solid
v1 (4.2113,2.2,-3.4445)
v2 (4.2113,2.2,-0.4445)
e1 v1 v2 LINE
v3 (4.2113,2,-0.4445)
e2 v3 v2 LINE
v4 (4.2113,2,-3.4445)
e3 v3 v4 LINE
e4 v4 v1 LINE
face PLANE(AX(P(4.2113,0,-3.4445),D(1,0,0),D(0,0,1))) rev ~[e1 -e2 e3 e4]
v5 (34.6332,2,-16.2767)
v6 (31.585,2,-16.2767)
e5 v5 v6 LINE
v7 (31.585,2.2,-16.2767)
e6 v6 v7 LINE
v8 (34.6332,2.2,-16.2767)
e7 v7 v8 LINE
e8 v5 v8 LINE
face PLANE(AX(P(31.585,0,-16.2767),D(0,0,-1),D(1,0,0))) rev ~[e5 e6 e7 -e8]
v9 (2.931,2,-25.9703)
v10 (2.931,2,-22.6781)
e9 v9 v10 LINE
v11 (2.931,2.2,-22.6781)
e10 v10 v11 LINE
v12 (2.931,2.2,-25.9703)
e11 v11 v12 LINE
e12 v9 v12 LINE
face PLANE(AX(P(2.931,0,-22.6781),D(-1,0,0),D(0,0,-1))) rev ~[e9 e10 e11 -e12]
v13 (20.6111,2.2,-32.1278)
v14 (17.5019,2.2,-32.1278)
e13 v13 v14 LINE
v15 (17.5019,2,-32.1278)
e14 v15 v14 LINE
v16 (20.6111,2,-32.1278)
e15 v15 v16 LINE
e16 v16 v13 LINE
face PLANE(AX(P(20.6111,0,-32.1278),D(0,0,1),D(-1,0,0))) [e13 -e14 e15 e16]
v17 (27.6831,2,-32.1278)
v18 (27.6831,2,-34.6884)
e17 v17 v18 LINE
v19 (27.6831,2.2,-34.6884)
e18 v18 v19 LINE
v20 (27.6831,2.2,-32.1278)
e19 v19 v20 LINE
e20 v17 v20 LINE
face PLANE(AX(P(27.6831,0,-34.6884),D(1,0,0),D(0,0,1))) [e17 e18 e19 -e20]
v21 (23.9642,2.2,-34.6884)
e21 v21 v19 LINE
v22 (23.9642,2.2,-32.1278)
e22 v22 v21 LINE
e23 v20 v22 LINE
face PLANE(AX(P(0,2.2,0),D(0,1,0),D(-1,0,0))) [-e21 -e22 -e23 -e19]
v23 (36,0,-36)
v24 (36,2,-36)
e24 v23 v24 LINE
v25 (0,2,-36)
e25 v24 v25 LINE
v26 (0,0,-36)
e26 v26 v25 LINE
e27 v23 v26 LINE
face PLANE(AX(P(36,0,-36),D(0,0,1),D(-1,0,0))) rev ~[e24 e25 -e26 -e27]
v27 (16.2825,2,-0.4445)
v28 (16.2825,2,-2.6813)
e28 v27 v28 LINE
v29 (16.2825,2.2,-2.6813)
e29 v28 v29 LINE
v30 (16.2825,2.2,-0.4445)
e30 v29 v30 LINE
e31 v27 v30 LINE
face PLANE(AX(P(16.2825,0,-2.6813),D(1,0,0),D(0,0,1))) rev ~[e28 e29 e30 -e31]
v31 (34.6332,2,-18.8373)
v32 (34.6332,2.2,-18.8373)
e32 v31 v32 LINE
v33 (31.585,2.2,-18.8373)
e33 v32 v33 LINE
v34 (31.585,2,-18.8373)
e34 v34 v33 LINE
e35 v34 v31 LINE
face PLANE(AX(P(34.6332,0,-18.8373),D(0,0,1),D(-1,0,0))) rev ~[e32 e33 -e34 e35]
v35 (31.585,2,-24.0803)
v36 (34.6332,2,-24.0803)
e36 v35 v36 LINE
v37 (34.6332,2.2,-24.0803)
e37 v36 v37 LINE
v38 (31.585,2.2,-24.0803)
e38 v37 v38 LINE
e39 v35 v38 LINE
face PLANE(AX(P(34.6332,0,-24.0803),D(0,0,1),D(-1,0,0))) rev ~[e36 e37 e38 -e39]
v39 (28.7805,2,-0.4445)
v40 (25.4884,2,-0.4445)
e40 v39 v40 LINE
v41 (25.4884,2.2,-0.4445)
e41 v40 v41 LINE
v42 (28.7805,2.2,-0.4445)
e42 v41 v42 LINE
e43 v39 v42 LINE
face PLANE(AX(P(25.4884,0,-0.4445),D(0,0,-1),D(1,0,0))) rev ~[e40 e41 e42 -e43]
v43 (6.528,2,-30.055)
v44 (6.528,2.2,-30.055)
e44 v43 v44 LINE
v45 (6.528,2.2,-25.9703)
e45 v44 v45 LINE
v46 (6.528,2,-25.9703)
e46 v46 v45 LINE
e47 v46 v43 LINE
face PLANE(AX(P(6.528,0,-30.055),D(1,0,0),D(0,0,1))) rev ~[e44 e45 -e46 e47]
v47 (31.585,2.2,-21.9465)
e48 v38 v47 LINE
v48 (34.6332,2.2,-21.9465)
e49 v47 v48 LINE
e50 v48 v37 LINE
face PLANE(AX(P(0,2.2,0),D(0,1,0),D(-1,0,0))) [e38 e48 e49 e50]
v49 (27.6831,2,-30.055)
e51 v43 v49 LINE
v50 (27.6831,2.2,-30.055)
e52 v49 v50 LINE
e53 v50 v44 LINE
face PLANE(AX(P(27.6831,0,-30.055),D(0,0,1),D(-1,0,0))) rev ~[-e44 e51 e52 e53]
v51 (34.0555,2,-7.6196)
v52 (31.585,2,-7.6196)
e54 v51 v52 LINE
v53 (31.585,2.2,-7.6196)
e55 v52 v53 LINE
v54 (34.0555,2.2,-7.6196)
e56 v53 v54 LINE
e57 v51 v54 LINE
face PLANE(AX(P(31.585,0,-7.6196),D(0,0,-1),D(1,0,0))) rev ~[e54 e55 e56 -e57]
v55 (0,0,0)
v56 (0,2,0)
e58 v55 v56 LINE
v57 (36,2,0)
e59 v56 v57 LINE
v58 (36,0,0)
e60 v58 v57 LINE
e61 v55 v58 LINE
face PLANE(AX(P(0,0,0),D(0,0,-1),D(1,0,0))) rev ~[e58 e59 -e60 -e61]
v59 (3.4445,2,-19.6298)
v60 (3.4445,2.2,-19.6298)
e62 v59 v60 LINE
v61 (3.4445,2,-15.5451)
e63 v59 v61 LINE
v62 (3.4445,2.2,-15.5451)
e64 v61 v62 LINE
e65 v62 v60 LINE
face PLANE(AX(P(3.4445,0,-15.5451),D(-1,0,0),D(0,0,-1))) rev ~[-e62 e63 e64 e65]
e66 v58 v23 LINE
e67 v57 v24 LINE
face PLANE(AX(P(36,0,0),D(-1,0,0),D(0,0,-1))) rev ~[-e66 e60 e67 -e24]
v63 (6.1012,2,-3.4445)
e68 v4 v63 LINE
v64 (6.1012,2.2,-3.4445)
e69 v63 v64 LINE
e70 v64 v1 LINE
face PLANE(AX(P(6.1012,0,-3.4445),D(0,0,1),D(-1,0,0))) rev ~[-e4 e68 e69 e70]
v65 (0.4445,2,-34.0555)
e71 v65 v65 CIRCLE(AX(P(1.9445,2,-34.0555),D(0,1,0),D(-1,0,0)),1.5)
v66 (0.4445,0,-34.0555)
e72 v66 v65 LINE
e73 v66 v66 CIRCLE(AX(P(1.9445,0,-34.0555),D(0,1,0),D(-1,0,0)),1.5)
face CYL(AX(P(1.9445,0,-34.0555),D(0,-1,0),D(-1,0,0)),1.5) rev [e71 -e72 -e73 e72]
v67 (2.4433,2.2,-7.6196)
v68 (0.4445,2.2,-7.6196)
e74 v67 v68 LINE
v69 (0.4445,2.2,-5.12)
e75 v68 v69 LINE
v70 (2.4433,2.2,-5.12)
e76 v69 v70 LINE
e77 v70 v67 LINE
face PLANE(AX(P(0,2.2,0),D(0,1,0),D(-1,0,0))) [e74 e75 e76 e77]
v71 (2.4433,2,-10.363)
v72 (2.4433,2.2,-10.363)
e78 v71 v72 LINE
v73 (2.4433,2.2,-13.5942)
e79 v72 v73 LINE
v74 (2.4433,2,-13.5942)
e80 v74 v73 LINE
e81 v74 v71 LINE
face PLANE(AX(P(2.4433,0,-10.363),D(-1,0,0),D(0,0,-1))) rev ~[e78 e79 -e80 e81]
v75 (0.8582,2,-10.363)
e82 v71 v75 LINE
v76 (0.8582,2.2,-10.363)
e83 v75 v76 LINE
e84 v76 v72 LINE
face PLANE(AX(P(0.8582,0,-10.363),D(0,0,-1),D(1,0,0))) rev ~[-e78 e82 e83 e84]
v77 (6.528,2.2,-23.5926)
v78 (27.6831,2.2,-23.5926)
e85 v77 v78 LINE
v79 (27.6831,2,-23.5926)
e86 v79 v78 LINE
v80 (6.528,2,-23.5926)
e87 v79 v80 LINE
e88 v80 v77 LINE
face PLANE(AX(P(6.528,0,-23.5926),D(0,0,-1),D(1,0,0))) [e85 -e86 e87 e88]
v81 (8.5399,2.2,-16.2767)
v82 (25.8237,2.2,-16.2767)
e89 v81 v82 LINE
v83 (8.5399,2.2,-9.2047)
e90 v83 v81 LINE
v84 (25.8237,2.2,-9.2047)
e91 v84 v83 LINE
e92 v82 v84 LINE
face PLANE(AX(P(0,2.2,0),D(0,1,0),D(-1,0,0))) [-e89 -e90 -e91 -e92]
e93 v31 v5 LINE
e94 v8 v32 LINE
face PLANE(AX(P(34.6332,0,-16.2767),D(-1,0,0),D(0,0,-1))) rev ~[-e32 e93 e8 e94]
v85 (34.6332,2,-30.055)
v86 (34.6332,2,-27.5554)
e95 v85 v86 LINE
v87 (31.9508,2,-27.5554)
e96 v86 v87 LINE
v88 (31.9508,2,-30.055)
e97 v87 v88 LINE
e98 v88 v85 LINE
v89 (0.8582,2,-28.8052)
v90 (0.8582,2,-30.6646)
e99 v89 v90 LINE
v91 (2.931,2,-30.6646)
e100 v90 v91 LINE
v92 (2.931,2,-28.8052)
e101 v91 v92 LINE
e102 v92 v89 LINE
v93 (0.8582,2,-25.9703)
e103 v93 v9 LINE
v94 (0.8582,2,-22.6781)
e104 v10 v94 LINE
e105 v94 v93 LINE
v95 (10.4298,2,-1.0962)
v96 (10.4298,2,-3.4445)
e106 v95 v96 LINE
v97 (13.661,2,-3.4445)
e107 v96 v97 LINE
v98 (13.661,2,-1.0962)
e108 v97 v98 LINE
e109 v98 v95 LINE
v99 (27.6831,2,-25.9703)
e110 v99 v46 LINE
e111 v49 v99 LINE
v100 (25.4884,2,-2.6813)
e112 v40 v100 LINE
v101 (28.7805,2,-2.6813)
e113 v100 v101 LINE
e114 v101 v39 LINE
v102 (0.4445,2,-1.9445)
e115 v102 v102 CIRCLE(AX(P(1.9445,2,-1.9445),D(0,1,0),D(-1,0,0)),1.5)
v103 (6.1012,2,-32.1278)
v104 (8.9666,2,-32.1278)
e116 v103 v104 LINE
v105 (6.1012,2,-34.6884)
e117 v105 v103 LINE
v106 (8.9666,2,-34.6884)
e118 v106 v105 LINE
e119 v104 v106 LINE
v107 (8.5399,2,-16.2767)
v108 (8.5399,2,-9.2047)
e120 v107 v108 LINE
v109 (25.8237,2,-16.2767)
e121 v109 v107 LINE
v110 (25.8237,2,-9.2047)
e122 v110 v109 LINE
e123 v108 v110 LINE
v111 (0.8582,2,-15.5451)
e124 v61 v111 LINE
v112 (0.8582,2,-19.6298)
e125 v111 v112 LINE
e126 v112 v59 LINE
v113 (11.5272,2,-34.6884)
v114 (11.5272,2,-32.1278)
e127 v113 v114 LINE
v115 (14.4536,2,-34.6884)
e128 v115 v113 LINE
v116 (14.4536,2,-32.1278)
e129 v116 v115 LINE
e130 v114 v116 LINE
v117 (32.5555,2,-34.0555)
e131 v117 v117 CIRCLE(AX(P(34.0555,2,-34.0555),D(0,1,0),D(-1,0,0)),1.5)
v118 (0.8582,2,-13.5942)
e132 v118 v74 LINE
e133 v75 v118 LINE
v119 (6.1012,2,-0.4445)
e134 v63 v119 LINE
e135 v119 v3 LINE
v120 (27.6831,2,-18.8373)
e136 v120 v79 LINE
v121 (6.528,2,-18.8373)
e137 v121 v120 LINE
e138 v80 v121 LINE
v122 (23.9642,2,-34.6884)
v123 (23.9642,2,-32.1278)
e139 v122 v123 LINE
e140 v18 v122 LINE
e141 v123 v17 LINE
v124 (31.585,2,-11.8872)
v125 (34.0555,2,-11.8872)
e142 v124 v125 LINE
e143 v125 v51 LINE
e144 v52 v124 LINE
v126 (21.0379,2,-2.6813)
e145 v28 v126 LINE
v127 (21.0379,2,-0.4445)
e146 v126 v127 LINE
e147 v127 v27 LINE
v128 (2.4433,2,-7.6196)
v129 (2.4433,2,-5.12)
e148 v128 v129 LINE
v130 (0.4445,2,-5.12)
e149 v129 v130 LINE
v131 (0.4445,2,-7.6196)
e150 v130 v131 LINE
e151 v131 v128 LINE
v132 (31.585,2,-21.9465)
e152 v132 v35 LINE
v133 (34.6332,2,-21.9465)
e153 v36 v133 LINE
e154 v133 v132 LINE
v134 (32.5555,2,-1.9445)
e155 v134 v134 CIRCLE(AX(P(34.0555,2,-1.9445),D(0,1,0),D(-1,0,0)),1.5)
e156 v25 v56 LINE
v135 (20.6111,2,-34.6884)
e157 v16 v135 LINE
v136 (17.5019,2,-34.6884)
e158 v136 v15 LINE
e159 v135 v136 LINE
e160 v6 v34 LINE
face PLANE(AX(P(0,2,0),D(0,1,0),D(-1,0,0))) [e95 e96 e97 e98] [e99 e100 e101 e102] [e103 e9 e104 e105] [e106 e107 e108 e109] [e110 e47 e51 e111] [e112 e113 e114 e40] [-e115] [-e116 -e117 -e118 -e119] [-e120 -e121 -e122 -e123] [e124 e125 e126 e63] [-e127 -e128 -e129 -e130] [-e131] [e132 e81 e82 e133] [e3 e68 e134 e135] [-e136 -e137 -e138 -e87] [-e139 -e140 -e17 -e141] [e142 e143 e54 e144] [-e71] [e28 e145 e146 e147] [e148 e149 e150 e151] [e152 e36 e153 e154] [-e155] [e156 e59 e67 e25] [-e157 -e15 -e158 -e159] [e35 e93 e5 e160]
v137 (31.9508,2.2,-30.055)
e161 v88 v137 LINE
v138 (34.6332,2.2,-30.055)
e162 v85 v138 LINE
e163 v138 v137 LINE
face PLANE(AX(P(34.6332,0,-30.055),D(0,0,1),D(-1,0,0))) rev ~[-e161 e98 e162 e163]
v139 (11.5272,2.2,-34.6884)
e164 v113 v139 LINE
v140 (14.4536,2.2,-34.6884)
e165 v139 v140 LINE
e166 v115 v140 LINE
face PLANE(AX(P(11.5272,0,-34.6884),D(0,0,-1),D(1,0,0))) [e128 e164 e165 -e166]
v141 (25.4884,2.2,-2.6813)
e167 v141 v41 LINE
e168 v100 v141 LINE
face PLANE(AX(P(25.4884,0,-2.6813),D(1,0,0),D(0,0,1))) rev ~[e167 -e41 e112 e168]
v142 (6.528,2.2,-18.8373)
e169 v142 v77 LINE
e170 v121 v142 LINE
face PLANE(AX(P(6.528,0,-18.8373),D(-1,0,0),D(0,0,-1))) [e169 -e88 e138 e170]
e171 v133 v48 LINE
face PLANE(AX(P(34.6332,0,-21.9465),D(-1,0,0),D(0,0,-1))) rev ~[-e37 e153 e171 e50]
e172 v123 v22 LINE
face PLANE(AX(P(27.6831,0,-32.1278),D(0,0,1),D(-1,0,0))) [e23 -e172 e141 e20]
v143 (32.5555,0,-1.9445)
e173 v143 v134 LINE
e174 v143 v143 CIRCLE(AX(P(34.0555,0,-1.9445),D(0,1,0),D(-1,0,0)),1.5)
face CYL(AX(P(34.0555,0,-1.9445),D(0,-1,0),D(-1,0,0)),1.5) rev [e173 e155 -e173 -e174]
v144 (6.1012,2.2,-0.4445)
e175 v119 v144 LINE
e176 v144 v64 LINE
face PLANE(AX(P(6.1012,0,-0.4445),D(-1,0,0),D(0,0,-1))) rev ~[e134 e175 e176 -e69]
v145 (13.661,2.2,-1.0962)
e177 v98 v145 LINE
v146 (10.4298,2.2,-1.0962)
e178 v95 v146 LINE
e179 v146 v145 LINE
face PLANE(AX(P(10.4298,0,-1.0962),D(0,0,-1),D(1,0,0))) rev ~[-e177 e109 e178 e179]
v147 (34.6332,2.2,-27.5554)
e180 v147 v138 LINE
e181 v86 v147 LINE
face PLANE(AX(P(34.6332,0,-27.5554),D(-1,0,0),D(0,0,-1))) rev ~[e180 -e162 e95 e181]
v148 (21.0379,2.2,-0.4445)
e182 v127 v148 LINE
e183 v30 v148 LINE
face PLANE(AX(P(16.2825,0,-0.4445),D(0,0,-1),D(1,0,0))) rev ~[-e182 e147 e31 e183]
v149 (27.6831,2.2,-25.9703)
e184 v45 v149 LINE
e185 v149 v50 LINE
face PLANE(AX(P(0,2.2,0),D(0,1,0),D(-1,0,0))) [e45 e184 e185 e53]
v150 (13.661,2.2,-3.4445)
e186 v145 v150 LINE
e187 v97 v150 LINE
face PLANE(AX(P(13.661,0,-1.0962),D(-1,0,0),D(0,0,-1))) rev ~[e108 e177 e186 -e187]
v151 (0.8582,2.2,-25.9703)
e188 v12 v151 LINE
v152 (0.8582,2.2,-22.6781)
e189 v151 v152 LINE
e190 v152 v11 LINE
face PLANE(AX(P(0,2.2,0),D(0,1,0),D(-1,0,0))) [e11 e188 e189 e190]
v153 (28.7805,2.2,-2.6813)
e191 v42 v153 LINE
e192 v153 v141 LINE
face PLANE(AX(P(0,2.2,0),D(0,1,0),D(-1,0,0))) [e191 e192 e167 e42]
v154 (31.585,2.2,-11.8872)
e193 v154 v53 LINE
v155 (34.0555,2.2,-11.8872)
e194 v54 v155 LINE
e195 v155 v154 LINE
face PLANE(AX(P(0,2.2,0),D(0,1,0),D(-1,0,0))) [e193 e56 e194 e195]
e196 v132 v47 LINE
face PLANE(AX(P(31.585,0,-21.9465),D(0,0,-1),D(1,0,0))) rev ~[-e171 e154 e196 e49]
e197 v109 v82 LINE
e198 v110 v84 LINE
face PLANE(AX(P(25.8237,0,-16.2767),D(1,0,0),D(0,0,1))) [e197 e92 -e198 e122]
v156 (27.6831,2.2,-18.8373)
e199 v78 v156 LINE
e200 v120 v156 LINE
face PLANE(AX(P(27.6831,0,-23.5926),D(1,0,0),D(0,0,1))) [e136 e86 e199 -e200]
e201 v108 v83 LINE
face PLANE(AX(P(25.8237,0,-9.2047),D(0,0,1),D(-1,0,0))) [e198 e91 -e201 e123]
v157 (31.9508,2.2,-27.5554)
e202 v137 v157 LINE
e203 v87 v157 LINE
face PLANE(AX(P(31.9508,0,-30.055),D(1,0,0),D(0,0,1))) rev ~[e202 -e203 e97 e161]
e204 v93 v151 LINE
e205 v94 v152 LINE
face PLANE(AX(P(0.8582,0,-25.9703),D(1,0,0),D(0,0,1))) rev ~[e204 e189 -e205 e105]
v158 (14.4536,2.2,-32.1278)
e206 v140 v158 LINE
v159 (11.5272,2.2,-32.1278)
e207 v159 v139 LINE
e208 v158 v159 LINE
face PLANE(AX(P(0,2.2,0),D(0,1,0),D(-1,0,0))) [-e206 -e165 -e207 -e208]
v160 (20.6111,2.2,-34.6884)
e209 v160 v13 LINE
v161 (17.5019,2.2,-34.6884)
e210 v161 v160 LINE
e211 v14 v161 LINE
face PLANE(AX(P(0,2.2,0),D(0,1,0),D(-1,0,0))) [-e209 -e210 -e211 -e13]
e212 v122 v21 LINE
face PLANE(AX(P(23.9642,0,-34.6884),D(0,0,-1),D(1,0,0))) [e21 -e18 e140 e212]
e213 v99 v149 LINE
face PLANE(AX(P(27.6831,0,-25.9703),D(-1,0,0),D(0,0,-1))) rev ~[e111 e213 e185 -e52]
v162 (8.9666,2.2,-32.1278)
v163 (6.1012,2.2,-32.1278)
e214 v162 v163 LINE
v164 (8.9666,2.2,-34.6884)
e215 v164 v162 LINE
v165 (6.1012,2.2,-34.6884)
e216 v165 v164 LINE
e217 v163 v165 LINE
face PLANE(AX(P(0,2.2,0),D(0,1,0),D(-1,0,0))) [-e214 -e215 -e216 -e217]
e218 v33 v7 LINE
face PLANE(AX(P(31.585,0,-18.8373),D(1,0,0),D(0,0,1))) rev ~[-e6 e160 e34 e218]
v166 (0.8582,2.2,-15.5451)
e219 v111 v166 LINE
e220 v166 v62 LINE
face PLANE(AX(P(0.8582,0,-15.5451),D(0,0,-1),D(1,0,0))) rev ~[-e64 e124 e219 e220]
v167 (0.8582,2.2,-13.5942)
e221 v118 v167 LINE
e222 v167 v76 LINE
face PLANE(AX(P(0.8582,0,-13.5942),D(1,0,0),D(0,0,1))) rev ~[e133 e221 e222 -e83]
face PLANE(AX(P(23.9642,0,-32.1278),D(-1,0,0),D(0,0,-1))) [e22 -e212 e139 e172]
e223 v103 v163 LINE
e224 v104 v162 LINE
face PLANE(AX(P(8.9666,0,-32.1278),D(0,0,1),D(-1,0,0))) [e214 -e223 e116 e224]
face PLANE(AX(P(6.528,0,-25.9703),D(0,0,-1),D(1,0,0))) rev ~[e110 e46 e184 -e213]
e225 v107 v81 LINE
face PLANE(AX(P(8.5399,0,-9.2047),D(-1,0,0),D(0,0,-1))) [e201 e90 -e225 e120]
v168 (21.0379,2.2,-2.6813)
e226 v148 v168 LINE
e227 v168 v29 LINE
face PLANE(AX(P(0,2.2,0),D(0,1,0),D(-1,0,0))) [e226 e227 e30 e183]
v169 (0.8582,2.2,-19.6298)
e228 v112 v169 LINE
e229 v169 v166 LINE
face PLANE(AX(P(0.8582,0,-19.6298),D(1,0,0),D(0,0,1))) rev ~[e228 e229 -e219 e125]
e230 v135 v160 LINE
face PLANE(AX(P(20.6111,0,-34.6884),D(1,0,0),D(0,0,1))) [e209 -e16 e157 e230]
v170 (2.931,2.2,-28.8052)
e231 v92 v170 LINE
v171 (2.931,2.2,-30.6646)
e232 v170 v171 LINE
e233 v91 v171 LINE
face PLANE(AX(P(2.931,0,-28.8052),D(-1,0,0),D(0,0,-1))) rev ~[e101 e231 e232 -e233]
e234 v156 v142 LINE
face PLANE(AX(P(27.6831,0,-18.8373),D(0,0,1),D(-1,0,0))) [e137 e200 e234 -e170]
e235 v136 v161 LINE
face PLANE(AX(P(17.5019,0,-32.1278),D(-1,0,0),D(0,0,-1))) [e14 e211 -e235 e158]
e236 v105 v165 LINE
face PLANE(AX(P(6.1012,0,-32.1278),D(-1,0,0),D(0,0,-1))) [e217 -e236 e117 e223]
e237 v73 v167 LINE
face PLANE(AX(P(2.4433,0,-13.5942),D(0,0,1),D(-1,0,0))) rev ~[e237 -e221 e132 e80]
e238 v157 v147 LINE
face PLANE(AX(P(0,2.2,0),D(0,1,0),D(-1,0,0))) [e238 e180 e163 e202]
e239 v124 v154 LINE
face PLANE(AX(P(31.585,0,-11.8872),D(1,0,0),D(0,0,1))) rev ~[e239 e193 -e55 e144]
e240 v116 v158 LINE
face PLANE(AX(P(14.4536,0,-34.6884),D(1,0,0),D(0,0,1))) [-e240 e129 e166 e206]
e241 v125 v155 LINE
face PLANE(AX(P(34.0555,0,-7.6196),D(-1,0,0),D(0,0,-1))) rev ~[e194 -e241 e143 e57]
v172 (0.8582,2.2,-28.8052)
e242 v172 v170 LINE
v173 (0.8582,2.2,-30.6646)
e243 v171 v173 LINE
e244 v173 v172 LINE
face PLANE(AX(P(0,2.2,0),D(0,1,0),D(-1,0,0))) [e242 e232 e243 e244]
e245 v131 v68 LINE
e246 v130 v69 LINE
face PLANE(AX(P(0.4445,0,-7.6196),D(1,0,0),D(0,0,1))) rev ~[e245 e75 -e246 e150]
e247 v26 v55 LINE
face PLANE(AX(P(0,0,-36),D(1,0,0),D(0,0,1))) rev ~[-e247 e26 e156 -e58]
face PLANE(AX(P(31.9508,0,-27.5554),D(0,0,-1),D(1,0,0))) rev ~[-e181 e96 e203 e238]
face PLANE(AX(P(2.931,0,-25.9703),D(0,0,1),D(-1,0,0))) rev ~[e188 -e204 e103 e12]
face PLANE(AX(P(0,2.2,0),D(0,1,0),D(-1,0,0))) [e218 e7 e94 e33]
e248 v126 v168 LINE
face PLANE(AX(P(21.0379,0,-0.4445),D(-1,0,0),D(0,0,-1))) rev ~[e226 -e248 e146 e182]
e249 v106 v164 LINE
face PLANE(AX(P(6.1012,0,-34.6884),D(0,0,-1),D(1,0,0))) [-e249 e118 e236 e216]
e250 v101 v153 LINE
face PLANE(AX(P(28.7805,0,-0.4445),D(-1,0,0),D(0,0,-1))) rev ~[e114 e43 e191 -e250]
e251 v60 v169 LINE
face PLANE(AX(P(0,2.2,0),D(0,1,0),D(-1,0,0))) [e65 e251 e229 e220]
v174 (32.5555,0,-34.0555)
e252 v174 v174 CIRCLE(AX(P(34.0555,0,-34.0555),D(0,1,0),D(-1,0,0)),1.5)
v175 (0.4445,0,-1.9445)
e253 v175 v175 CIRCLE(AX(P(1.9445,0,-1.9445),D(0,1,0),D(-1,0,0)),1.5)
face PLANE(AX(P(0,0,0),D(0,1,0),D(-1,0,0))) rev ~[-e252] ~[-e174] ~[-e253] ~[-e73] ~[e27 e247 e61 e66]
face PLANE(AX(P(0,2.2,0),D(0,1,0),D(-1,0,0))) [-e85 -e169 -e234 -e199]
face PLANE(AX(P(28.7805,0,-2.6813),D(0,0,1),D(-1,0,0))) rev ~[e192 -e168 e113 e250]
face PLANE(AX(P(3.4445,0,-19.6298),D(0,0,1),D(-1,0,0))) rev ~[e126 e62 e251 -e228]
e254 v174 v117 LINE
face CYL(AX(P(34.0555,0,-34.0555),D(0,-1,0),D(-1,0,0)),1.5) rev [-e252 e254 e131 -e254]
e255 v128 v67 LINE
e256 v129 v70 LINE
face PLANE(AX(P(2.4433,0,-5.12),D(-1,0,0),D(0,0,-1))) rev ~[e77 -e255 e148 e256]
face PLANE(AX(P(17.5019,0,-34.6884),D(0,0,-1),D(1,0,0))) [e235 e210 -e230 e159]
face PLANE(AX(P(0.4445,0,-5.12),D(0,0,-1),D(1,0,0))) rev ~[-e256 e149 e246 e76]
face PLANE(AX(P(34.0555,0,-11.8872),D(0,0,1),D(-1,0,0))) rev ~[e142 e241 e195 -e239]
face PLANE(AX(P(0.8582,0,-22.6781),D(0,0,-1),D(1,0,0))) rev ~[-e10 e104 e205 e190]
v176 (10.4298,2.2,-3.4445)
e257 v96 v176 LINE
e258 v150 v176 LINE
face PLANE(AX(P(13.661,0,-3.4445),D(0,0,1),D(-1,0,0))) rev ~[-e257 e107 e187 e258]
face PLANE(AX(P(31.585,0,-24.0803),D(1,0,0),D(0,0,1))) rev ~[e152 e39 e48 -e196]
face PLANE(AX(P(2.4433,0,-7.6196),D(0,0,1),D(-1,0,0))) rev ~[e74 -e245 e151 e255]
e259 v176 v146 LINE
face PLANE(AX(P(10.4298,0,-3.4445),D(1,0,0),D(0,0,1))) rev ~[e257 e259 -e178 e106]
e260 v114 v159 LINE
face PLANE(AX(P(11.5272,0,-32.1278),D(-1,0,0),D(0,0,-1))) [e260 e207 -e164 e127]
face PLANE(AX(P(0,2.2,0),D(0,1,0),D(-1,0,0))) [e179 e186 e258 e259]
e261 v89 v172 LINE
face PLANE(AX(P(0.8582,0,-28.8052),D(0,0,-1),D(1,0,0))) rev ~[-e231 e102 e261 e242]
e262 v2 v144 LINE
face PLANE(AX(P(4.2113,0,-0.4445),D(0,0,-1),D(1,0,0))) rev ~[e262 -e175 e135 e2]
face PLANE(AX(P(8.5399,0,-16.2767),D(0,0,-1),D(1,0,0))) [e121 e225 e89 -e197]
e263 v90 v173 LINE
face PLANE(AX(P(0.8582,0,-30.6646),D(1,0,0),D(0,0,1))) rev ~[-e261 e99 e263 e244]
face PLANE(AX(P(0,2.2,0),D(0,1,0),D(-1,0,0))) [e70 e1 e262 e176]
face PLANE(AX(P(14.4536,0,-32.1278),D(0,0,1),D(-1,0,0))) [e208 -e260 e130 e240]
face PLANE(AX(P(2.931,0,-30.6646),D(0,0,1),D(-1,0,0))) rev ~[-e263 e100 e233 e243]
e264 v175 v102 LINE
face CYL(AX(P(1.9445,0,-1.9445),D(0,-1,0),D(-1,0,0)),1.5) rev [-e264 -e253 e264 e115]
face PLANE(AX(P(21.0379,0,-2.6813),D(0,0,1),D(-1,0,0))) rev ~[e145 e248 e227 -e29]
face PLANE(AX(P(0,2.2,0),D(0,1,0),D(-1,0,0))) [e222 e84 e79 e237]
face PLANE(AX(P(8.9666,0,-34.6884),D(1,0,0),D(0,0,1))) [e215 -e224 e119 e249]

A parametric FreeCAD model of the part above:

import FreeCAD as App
import Part
import Sketcher
from FreeCAD import Vector

doc = App.newDocument("Part")
body = doc.addObject("PartDesign::Body", "Body")

# Sketch on XZ plane
sketch1 = body.newObject("Sketcher::SketchObject", "Sketch")
sketch1.AttachmentSupport = (doc.getObject("XZ_Plane"), [""])
sketch1.MapMode = "FlatFace"
sketch1.addGeometry([
    Part.LineSegment(Vector(0, -36, 0), Vector(0, 0, 0)),  # 0
    Part.LineSegment(Vector(0, 0, 0), Vector(36, 0, 0)),  # 1
    Part.LineSegment(Vector(36, 0, 0), Vector(36, -36, 0)),  # 2
    Part.LineSegment(Vector(36, -36, 0), Vector(0, -36, 0)),  # 3
    Part.Circle(Vector(34.0555, -34.0555, 0), Vector(0, 0, 1), 1.5),  # 4
    Part.Circle(Vector(1.9445, -34.0555, 0), Vector(0, 0, 1), 1.5),  # 5
    Part.Circle(Vector(34.0555, -1.9445, 0), Vector(0, 0, 1), 1.5),  # 6
    Part.Circle(Vector(1.9445, -1.9445, 0), Vector(0, 0, 1), 1.5),  # 7
], False)
sketch1.addConstraint([
    Sketcher.Constraint("Coincident", 0, 2, 1, 1),
    Sketcher.Constraint("Coincident", 1, 2, 2, 1),
    Sketcher.Constraint("Coincident", 2, 2, 3, 1),
    Sketcher.Constraint("Coincident", 3, 2, 0, 1),
    Sketcher.Constraint("Vertical", 0),
    Sketcher.Constraint("Horizontal", 1),
    Sketcher.Constraint("Vertical", 2),
    Sketcher.Constraint("Horizontal", 3),
    Sketcher.Constraint("Coincident", 0, 2, -1, 1),
    Sketcher.Constraint("Equal", 4, 5),
    Sketcher.Constraint("Equal", 5, 6),
    Sketcher.Constraint("Equal", 6, 7),
    Sketcher.Constraint("Horizontal", 4, 3, 5, 3),
    Sketcher.Constraint("Horizontal", 6, 3, 7, 3),
    Sketcher.Constraint("Vertical", 4, 3, 6, 3),
    Sketcher.Constraint("Vertical", 5, 3, 7, 3),
    Sketcher.Constraint("Equal", 3, 0),
    Sketcher.Constraint("Diameter", 4, 3.0),
    Sketcher.Constraint("DistanceX", 1, 1, 1, 2, 36.0),
    Sketcher.Constraint("DistanceX", 5, 3, 4, 3, 32.111),
    Sketcher.Constraint("DistanceY", 4, 3, 6, 3, 32.111),
    Sketcher.Constraint("DistanceX", -1, 1, 4, 3, 34.0555),
    Sketcher.Constraint("DistanceY", 4, 3, -1, 1, 34.0555),
])
pad1 = body.newObject("PartDesign::Pad", "Pad")
pad1.Profile = sketch1
pad1.Length = 2
pad1.Reversed = True

# Sketch on XZ plane
sketch2 = body.newObject("Sketcher::SketchObject", "Sketch001")
sketch2.AttachmentSupport = (doc.getObject("XZ_Plane"), [""])
sketch2.MapMode = "FlatFace"
sketch2.addGeometry([
    Part.LineSegment(Vector(8.9666, -34.6884, 0), Vector(6.1012, -34.6884, 0)),  # 0
    Part.LineSegment(Vector(6.1012, -34.6884, 0), Vector(6.1012, -32.1278, 0)),  # 1
    Part.LineSegment(Vector(6.1012, -32.1278, 0), Vector(8.9666, -32.1278, 0)),  # 2
    Part.LineSegment(Vector(8.9666, -32.1278, 0), Vector(8.9666, -34.6884, 0)),  # 3
    Part.LineSegment(Vector(14.4536, -34.6884, 0), Vector(11.5272, -34.6884, 0)),  # 4
    Part.LineSegment(Vector(11.5272, -34.6884, 0), Vector(11.5272, -32.1278, 0)),  # 5
    Part.LineSegment(Vector(11.5272, -32.1278, 0), Vector(14.4536, -32.1278, 0)),  # 6
    Part.LineSegment(Vector(14.4536, -32.1278, 0), Vector(14.4536, -34.6884, 0)),  # 7
    Part.LineSegment(Vector(20.6111, -34.6884, 0), Vector(17.5019, -34.6884, 0)),  # 8
    Part.LineSegment(Vector(17.5019, -34.6884, 0), Vector(17.5019, -32.1278, 0)),  # 9
    Part.LineSegment(Vector(17.5019, -32.1278, 0), Vector(20.6111, -32.1278, 0)),  # 10
    Part.LineSegment(Vector(20.6111, -32.1278, 0), Vector(20.6111, -34.6884, 0)),  # 11
    Part.LineSegment(Vector(27.6831, -34.6884, 0), Vector(23.9642, -34.6884, 0)),  # 12
    Part.LineSegment(Vector(23.9642, -34.6884, 0), Vector(23.9642, -32.1278, 0)),  # 13
    Part.LineSegment(Vector(23.9642, -32.1278, 0), Vector(27.6831, -32.1278, 0)),  # 14
    Part.LineSegment(Vector(27.6831, -32.1278, 0), Vector(27.6831, -34.6884, 0)),  # 15
    Part.LineSegment(Vector(34.6332, -27.5554, 0), Vector(34.6332, -30.055, 0)),  # 16
    Part.LineSegment(Vector(34.6332, -30.055, 0), Vector(31.9508, -30.055, 0)),  # 17
    Part.LineSegment(Vector(31.9508, -30.055, 0), Vector(31.9508, -27.5554, 0)),  # 18
    Part.LineSegment(Vector(31.9508, -27.5554, 0), Vector(34.6332, -27.5554, 0)),  # 19
    Part.LineSegment(Vector(34.6332, -21.9465, 0), Vector(34.6332, -24.0803, 0)),  # 20
    Part.LineSegment(Vector(34.6332, -24.0803, 0), Vector(31.585, -24.0803, 0)),  # 21
    Part.LineSegment(Vector(31.585, -24.0803, 0), Vector(31.585, -21.9465, 0)),  # 22
    Part.LineSegment(Vector(31.585, -21.9465, 0), Vector(34.6332, -21.9465, 0)),  # 23
    Part.LineSegment(Vector(34.6332, -16.2767, 0), Vector(34.6332, -18.8373, 0)),  # 24
    Part.LineSegment(Vector(34.6332, -18.8373, 0), Vector(31.585, -18.8373, 0)),  # 25
    Part.LineSegment(Vector(31.585, -18.8373, 0), Vector(31.585, -16.2767, 0)),  # 26
    Part.LineSegment(Vector(31.585, -16.2767, 0), Vector(34.6332, -16.2767, 0)),  # 27
    Part.LineSegment(Vector(34.0555, -7.6196, 0), Vector(34.0555, -11.8872, 0)),  # 28
    Part.LineSegment(Vector(34.0555, -11.8872, 0), Vector(31.585, -11.8872, 0)),  # 29
    Part.LineSegment(Vector(31.585, -11.8872, 0), Vector(31.585, -7.6196, 0)),  # 30
    Part.LineSegment(Vector(31.585, -7.6196, 0), Vector(34.0555, -7.6196, 0)),  # 31
    Part.LineSegment(Vector(28.7805, -0.4445, 0), Vector(28.7805, -2.6813, 0)),  # 32
    Part.LineSegment(Vector(28.7805, -2.6813, 0), Vector(25.4884, -2.6813, 0)),  # 33
    Part.LineSegment(Vector(25.4884, -2.6813, 0), Vector(25.4884, -0.4445, 0)),  # 34
    Part.LineSegment(Vector(25.4884, -0.4445, 0), Vector(28.7805, -0.4445, 0)),  # 35
    Part.LineSegment(Vector(21.0379, -0.4445, 0), Vector(21.0379, -2.6813, 0)),  # 36
    Part.LineSegment(Vector(21.0379, -2.6813, 0), Vector(16.2825, -2.6813, 0)),  # 37
    Part.LineSegment(Vector(16.2825, -2.6813, 0), Vector(16.2825, -0.4445, 0)),  # 38
    Part.LineSegment(Vector(16.2825, -0.4445, 0), Vector(21.0379, -0.4445, 0)),  # 39
    Part.LineSegment(Vector(13.661, -1.0962, 0), Vector(13.661, -3.4445, 0)),  # 40
    Part.LineSegment(Vector(13.661, -3.4445, 0), Vector(10.4298, -3.4445, 0)),  # 41
    Part.LineSegment(Vector(10.4298, -3.4445, 0), Vector(10.4298, -1.0962, 0)),  # 42
    Part.LineSegment(Vector(10.4298, -1.0962, 0), Vector(13.661, -1.0962, 0)),  # 43
    Part.LineSegment(Vector(6.1012, -0.4445, 0), Vector(6.1012, -3.4445, 0)),  # 44
    Part.LineSegment(Vector(6.1012, -3.4445, 0), Vector(4.2113, -3.4445, 0)),  # 45
    Part.LineSegment(Vector(4.2113, -3.4445, 0), Vector(4.2113, -0.4445, 0)),  # 46
    Part.LineSegment(Vector(4.2113, -0.4445, 0), Vector(6.1012, -0.4445, 0)),  # 47
    Part.LineSegment(Vector(2.4433, -5.12, 0), Vector(2.4433, -7.6196, 0)),  # 48
    Part.LineSegment(Vector(2.4433, -7.6196, 0), Vector(0.4445, -7.6196, 0)),  # 49
    Part.LineSegment(Vector(0.4445, -7.6196, 0), Vector(0.4445, -5.12, 0)),  # 50
    Part.LineSegment(Vector(0.4445, -5.12, 0), Vector(2.4433, -5.12, 0)),  # 51
    Part.LineSegment(Vector(2.4433, -10.363, 0), Vector(2.4433, -13.5942, 0)),  # 52
    Part.LineSegment(Vector(2.4433, -13.5942, 0), Vector(0.8582, -13.5942, 0)),  # 53
    Part.LineSegment(Vector(0.8582, -13.5942, 0), Vector(0.8582, -10.363, 0)),  # 54
    Part.LineSegment(Vector(0.8582, -10.363, 0), Vector(2.4433, -10.363, 0)),  # 55
    Part.LineSegment(Vector(3.4445, -15.5451, 0), Vector(3.4445, -19.6298, 0)),  # 56
    Part.LineSegment(Vector(3.4445, -19.6298, 0), Vector(0.8582, -19.6298, 0)),  # 57
    Part.LineSegment(Vector(0.8582, -19.6298, 0), Vector(0.8582, -15.5451, 0)),  # 58
    Part.LineSegment(Vector(0.8582, -15.5451, 0), Vector(3.4445, -15.5451, 0)),  # 59
    Part.LineSegment(Vector(2.931, -22.6781, 0), Vector(2.931, -25.9703, 0)),  # 60
    Part.LineSegment(Vector(2.931, -25.9703, 0), Vector(0.8582, -25.9703, 0)),  # 61
    Part.LineSegment(Vector(0.8582, -25.9703, 0), Vector(0.8582, -22.6781, 0)),  # 62
    Part.LineSegment(Vector(0.8582, -22.6781, 0), Vector(2.931, -22.6781, 0)),  # 63
    Part.LineSegment(Vector(2.931, -28.8052, 0), Vector(2.931, -30.6646, 0)),  # 64
    Part.LineSegment(Vector(2.931, -30.6646, 0), Vector(0.8582, -30.6646, 0)),  # 65
    Part.LineSegment(Vector(0.8582, -30.6646, 0), Vector(0.8582, -28.8052, 0)),  # 66
    Part.LineSegment(Vector(0.8582, -28.8052, 0), Vector(2.931, -28.8052, 0)),  # 67
    Part.LineSegment(Vector(27.6831, -25.9703, 0), Vector(27.6831, -30.055, 0)),  # 68
    Part.LineSegment(Vector(27.6831, -30.055, 0), Vector(6.528, -30.055, 0)),  # 69
    Part.LineSegment(Vector(6.528, -30.055, 0), Vector(6.528, -25.9703, 0)),  # 70
    Part.LineSegment(Vector(6.528, -25.9703, 0), Vector(27.6831, -25.9703, 0)),  # 71
    Part.LineSegment(Vector(27.6831, -23.5926, 0), Vector(6.528, -23.5926, 0)),  # 72
    Part.LineSegment(Vector(6.528, -23.5926, 0), Vector(6.528, -18.8373, 0)),  # 73
    Part.LineSegment(Vector(6.528, -18.8373, 0), Vector(27.6831, -18.8373, 0)),  # 74
    Part.LineSegment(Vector(27.6831, -18.8373, 0), Vector(27.6831, -23.5926, 0)),  # 75
    Part.LineSegment(Vector(8.5399, -9.2047, 0), Vector(25.8237, -9.2047, 0)),  # 76
    Part.LineSegment(Vector(25.8237, -9.2047, 0), Vector(25.8237, -16.2767, 0)),  # 77
    Part.LineSegment(Vector(25.8237, -16.2767, 0), Vector(8.5399, -16.2767, 0)),  # 78
    Part.LineSegment(Vector(8.5399, -16.2767, 0), Vector(8.5399, -9.2047, 0)),  # 79
], False)
sketch2.addConstraint([
    Sketcher.Constraint("Coincident", 0, 2, 1, 1),
    Sketcher.Constraint("Coincident", 1, 2, 2, 1),
    Sketcher.Constraint("Coincident", 2, 2, 3, 1),
    Sketcher.Constraint("Coincident", 3, 2, 0, 1),
    Sketcher.Constraint("Coincident", 4, 2, 5, 1),
    Sketcher.Constraint("Coincident", 5, 2, 6, 1),
    Sketcher.Constraint("Coincident", 6, 2, 7, 1),
    Sketcher.Constraint("Coincident", 7, 2, 4, 1),
    Sketcher.Constraint("Coincident", 8, 2, 9, 1),
    Sketcher.Constraint("Coincident", 9, 2, 10, 1),
    Sketcher.Constraint("Coincident", 10, 2, 11, 1),
    Sketcher.Constraint("Coincident", 11, 2, 8, 1),
    Sketcher.Constraint("Coincident", 12, 2, 13, 1),
    Sketcher.Constraint("Coincident", 13, 2, 14, 1),
    Sketcher.Constraint("Coincident", 14, 2, 15, 1),
    Sketcher.Constraint("Coincident", 15, 2, 12, 1),
    Sketcher.Constraint("Coincident", 16, 2, 17, 1),
    Sketcher.Constraint("Coincident", 17, 2, 18, 1),
    Sketcher.Constraint("Coincident", 18, 2, 19, 1),
    Sketcher.Constraint("Coincident", 19, 2, 16, 1),
    Sketcher.Constraint("Coincident", 20, 2, 21, 1),
    Sketcher.Constraint("Coincident", 21, 2, 22, 1),
    Sketcher.Constraint("Coincident", 22, 2, 23, 1),
    Sketcher.Constraint("Coincident", 23, 2, 20, 1),
    Sketcher.Constraint("Coincident", 24, 2, 25, 1),
    Sketcher.Constraint("Coincident", 25, 2, 26, 1),
    Sketcher.Constraint("Coincident", 26, 2, 27, 1),
    Sketcher.Constraint("Coincident", 27, 2, 24, 1),
    Sketcher.Constraint("Coincident", 28, 2, 29, 1),
    Sketcher.Constraint("Coincident", 29, 2, 30, 1),
    Sketcher.Constraint("Coincident", 30, 2, 31, 1),
    Sketcher.Constraint("Coincident", 31, 2, 28, 1),
    Sketcher.Constraint("Coincident", 32, 2, 33, 1),
    Sketcher.Constraint("Coincident", 33, 2, 34, 1),
    Sketcher.Constraint("Coincident", 34, 2, 35, 1),
    Sketcher.Constraint("Coincident", 35, 2, 32, 1),
    Sketcher.Constraint("Coincident", 36, 2, 37, 1),
    Sketcher.Constraint("Coincident", 37, 2, 38, 1),
    Sketcher.Constraint("Coincident", 38, 2, 39, 1),
    Sketcher.Constraint("Coincident", 39, 2, 36, 1),
    Sketcher.Constraint("Coincident", 40, 2, 41, 1),
    Sketcher.Constraint("Coincident", 41, 2, 42, 1),
    Sketcher.Constraint("Coincident", 42, 2, 43, 1),
    Sketcher.Constraint("Coincident", 43, 2, 40, 1),
    Sketcher.Constraint("Coincident", 44, 2, 45, 1),
    Sketcher.Constraint("Coincident", 45, 2, 46, 1),
    Sketcher.Constraint("Coincident", 46, 2, 47, 1),
    Sketcher.Constraint("Coincident", 47, 2, 44, 1),
    Sketcher.Constraint("Coincident", 48, 2, 49, 1),
    Sketcher.Constraint("Coincident", 49, 2, 50, 1),
    Sketcher.Constraint("Coincident", 50, 2, 51, 1),
    Sketcher.Constraint("Coincident", 51, 2, 48, 1),
    Sketcher.Constraint("Coincident", 52, 2, 53, 1),
    Sketcher.Constraint("Coincident", 53, 2, 54, 1),
    Sketcher.Constraint("Coincident", 54, 2, 55, 1),
    Sketcher.Constraint("Coincident", 55, 2, 52, 1),
    Sketcher.Constraint("Coincident", 56, 2, 57, 1),
    Sketcher.Constraint("Coincident", 57, 2, 58, 1),
    Sketcher.Constraint("Coincident", 58, 2, 59, 1),
    Sketcher.Constraint("Coincident", 59, 2, 56, 1),
    Sketcher.Constraint("Coincident", 60, 2, 61, 1),
    Sketcher.Constraint("Coincident", 61, 2, 62, 1),
    Sketcher.Constraint("Coincident", 62, 2, 63, 1),
    Sketcher.Constraint("Coincident", 63, 2, 60, 1),
    Sketcher.Constraint("Coincident", 64, 2, 65, 1),
    Sketcher.Constraint("Coincident", 65, 2, 66, 1),
    Sketcher.Constraint("Coincident", 66, 2, 67, 1),
    Sketcher.Constraint("Coincident", 67, 2, 64, 1),
    Sketcher.Constraint("Coincident", 68, 2, 69, 1),
    Sketcher.Constraint("Coincident", 69, 2, 70, 1),
    Sketcher.Constraint("Coincident", 70, 2, 71, 1),
    Sketcher.Constraint("Coincident", 71, 2, 68, 1),
    Sketcher.Constraint("Coincident", 72, 2, 73, 1),
    Sketcher.Constraint("Coincident", 73, 2, 74, 1),
    Sketcher.Constraint("Coincident", 74, 2, 75, 1),
    Sketcher.Constraint("Coincident", 75, 2, 72, 1),
    Sketcher.Constraint("Coincident", 76, 2, 77, 1),
    Sketcher.Constraint("Coincident", 77, 2, 78, 1),
    Sketcher.Constraint("Coincident", 78, 2, 79, 1),
    Sketcher.Constraint("Coincident", 79, 2, 76, 1),
    Sketcher.Constraint("Horizontal", 0),
    Sketcher.Constraint("Vertical", 1),
    Sketcher.Constraint("Horizontal", 2),
    Sketcher.Constraint("Vertical", 3),
    Sketcher.Constraint("Horizontal", 4),
    Sketcher.Constraint("Vertical", 5),
    Sketcher.Constraint("Horizontal", 6),
    Sketcher.Constraint("Vertical", 7),
    Sketcher.Constraint("Horizontal", 8),
    Sketcher.Constraint("Vertical", 9),
    Sketcher.Constraint("Horizontal", 10),
    Sketcher.Constraint("Vertical", 11),
    Sketcher.Constraint("Horizontal", 12),
    Sketcher.Constraint("Vertical", 13),
    Sketcher.Constraint("Horizontal", 14),
    Sketcher.Constraint("Vertical", 15),
    Sketcher.Constraint("Vertical", 16),
    Sketcher.Constraint("Horizontal", 17),
    Sketcher.Constraint("Vertical", 18),
    Sketcher.Constraint("Horizontal", 19),
    Sketcher.Constraint("Vertical", 20),
    Sketcher.Constraint("Horizontal", 21),
    Sketcher.Constraint("Vertical", 22),
    Sketcher.Constraint("Horizontal", 23),
    Sketcher.Constraint("Vertical", 24),
    Sketcher.Constraint("Horizontal", 25),
    Sketcher.Constraint("Vertical", 26),
    Sketcher.Constraint("Horizontal", 27),
    Sketcher.Constraint("Vertical", 28),
    Sketcher.Constraint("Horizontal", 29),
    Sketcher.Constraint("Vertical", 30),
    Sketcher.Constraint("Horizontal", 31),
    Sketcher.Constraint("Vertical", 32),
    Sketcher.Constraint("Horizontal", 33),
    Sketcher.Constraint("Vertical", 34),
    Sketcher.Constraint("Horizontal", 35),
    Sketcher.Constraint("Vertical", 36),
    Sketcher.Constraint("Horizontal", 37),
    Sketcher.Constraint("Vertical", 38),
    Sketcher.Constraint("Horizontal", 39),
    Sketcher.Constraint("Vertical", 40),
    Sketcher.Constraint("Horizontal", 41),
    Sketcher.Constraint("Vertical", 42),
    Sketcher.Constraint("Horizontal", 43),
    Sketcher.Constraint("Vertical", 44),
    Sketcher.Constraint("Horizontal", 45),
    Sketcher.Constraint("Vertical", 46),
    Sketcher.Constraint("Horizontal", 47),
    Sketcher.Constraint("Vertical", 48),
    Sketcher.Constraint("Horizontal", 49),
    Sketcher.Constraint("Vertical", 50),
    Sketcher.Constraint("Horizontal", 51),
    Sketcher.Constraint("Vertical", 52),
    Sketcher.Constraint("Horizontal", 53),
    Sketcher.Constraint("Vertical", 54),
    Sketcher.Constraint("Horizontal", 55),
    Sketcher.Constraint("Vertical", 56),
    Sketcher.Constraint("Horizontal", 57),
    Sketcher.Constraint("Vertical", 58),
    Sketcher.Constraint("Horizontal", 59),
    Sketcher.Constraint("Vertical", 60),
    Sketcher.Constraint("Horizontal", 61),
    Sketcher.Constraint("Vertical", 62),
    Sketcher.Constraint("Horizontal", 63),
    Sketcher.Constraint("Vertical", 64),
    Sketcher.Constraint("Horizontal", 65),
    Sketcher.Constraint("Vertical", 66),
    Sketcher.Constraint("Horizontal", 67),
    Sketcher.Constraint("Vertical", 68),
    Sketcher.Constraint("Horizontal", 69),
    Sketcher.Constraint("Vertical", 70),
    Sketcher.Constraint("Horizontal", 71),
    Sketcher.Constraint("Horizontal", 72),
    Sketcher.Constraint("Vertical", 73),
    Sketcher.Constraint("Horizontal", 74),
    Sketcher.Constraint("Vertical", 75),
    Sketcher.Constraint("Horizontal", 76),
    Sketcher.Constraint("Vertical", 77),
    Sketcher.Constraint("Horizontal", 78),
    Sketcher.Constraint("Vertical", 79),
    Sketcher.Constraint("Horizontal", 3, 2, 4, 2),
    Sketcher.Constraint("Horizontal", 2, 2, 5, 2),
    Sketcher.Constraint("Horizontal", 7, 2, 8, 2),
    Sketcher.Constraint("Horizontal", 6, 2, 9, 2),
    Sketcher.Constraint("Horizontal", 11, 2, 12, 2),
    Sketcher.Constraint("Horizontal", 10, 2, 13, 2),
    Sketcher.Constraint("Horizontal", 33, 2, 36, 2),
    Sketcher.Constraint("Horizontal", 35, 2, 38, 2),
    Sketcher.Constraint("Horizontal", 41, 2, 44, 2),
    Sketcher.Constraint("Horizontal", 39, 2, 46, 2),
    Sketcher.Constraint("Horizontal", 31, 2, 48, 2),
    Sketcher.Constraint("Horizontal", 17, 2, 68, 2),
    Sketcher.Constraint("Horizontal", 61, 2, 70, 2),
    Sketcher.Constraint("Horizontal", 25, 2, 73, 2),
    Sketcher.Constraint("Horizontal", 27, 2, 77, 2),
    Sketcher.Constraint("Vertical", 19, 2, 20, 2),
    Sketcher.Constraint("Vertical", 23, 2, 24, 2),
    Sketcher.Constraint("Vertical", 22, 2, 25, 2),
    Sketcher.Constraint("Vertical", 26, 2, 29, 2),
    Sketcher.Constraint("Vertical", 1, 2, 44, 2),
    Sketcher.Constraint("Vertical", 51, 2, 52, 2),
    Sketcher.Constraint("Vertical", 54, 2, 57, 2),
    Sketcher.Constraint("Vertical", 58, 2, 61, 2),
    Sketcher.Constraint("Vertical", 63, 2, 64, 2),
    Sketcher.Constraint("Vertical", 62, 2, 65, 2),
    Sketcher.Constraint("Vertical", 15, 2, 68, 2),
    Sketcher.Constraint("Vertical", 70, 2, 72, 2),
    Sketcher.Constraint("Vertical", 71, 2, 74, 2),
    Sketcher.Constraint("Equal", 15, 24),
    Sketcher.Constraint("Equal", 18, 48),
    Sketcher.Constraint("Equal", 43, 52),
    Sketcher.Constraint("Equal", 35, 60),
    Sketcher.Constraint("Equal", 58, 68),
    Sketcher.Constraint("Equal", 39, 73),
    Sketcher.Constraint("DistanceY", 44, 2, 44, 1, 3.0),
    Sketcher.Constraint("DistanceX", 45, 2, 45, 1, 1.89),
    Sketcher.Constraint("DistanceX", 12, 2, 12, 1, 3.719),
    Sketcher.Constraint("DistanceX", 33, 2, 33, 1, 3.292),
    Sketcher.Constraint("DistanceX", 53, 2, 53, 1, 1.585),
    Sketcher.Constraint("DistanceX", 69, 2, 69, 1, 21.155),
    Sketcher.Constraint("DistanceY", 77, 2, 77, 1, 7.072),
    Sketcher.Constraint("DistanceY", 50, 2, -1, 1, 5.12),
    Sketcher.Constraint("DistanceX", -1, 1, 78, 2, 8.54),
    Sketcher.Constraint("DistanceX", 0, 2, 0, 1, 2.8654),
    Sketcher.Constraint("DistanceX", 4, 2, 4, 1, 2.9264),
    Sketcher.Constraint("DistanceX", 8, 2, 8, 1, 3.1092),
    Sketcher.Constraint("DistanceX", 17, 2, 17, 1, 2.6824),
    Sketcher.Constraint("DistanceX", 21, 2, 21, 1, 3.0482),
    Sketcher.Constraint("DistanceX", 29, 2, 29, 1, 2.4705),
    Sketcher.Constraint("DistanceX", 37, 2, 37, 1, 4.7554),
    Sketcher.Constraint("DistanceX", 41, 2, 41, 1, 3.2312),
    Sketcher.Constraint("DistanceX", 49, 2, 49, 1, 1.9988),
    Sketcher.Constraint("DistanceX", 57, 2, 57, 1, 2.5863),
    Sketcher.Constraint("DistanceX", 61, 2, 61, 1, 2.0728),
    Sketcher.Constraint("DistanceX", 76, 1, 76, 2, 17.2838),
    Sketcher.Constraint("DistanceY", 1, 1, 1, 2, 2.5606),
    Sketcher.Constraint("DistanceY", 16, 2, 16, 1, 2.4996),
    Sketcher.Constraint("DistanceY", 20, 2, 20, 1, 2.1338),
    Sketcher.Constraint("DistanceY", 28, 2, 28, 1, 4.2676),
    Sketcher.Constraint("DistanceY", 32, 2, 32, 1, 2.2368),
    Sketcher.Constraint("DistanceY", 40, 2, 40, 1, 2.3483),
    Sketcher.Constraint("DistanceY", 56, 2, 56, 1, 4.0847),
    Sketcher.Constraint("DistanceY", 64, 2, 64, 1, 1.8594),
    Sketcher.Constraint("DistanceX", -1, 1, 8, 2, 17.502),
    Sketcher.Constraint("DistanceX", -1, 1, 14, 2, 27.683),
    Sketcher.Constraint("DistanceY", 16, 2, -1, 1, 30.055),
    Sketcher.Constraint("DistanceX", -1, 1, 21, 2, 31.585),
    Sketcher.Constraint("DistanceX", -1, 1, 36, 2, 21.038),
    Sketcher.Constraint("DistanceX", -1, 1, 40, 2, 13.661),
    Sketcher.Constraint("DistanceY", 54, 2, -1, 1, 10.363),
    Sketcher.Constraint("DistanceY", 58, 2, -1, 1, 15.545),
    Sketcher.Constraint("DistanceX", -1, 1, 60, 2, 2.931),
    Sketcher.Constraint("DistanceX", -1, 1, 0, 2, 6.1012),
    Sketcher.Constraint("DistanceY", 0, 2, -1, 1, 34.6884),
    Sketcher.Constraint("DistanceX", -1, 1, 4, 2, 11.5272),
    Sketcher.Constraint("DistanceY", 20, 2, -1, 1, 24.0803),
    Sketcher.Constraint("DistanceY", 24, 2, -1, 1, 18.8373),
    Sketcher.Constraint("DistanceX", -1, 1, 32, 2, 28.7805),
    Sketcher.Constraint("DistanceY", 32, 2, -1, 1, 2.6813),
    Sketcher.Constraint("DistanceY", 64, 2, -1, 1, 30.6646),
])
pad2 = body.newObject("PartDesign::Pad", "Pad001")
pad2.Profile = sketch2
pad2.Length = 2.2
pad2.Reversed = True

doc.recompute()
